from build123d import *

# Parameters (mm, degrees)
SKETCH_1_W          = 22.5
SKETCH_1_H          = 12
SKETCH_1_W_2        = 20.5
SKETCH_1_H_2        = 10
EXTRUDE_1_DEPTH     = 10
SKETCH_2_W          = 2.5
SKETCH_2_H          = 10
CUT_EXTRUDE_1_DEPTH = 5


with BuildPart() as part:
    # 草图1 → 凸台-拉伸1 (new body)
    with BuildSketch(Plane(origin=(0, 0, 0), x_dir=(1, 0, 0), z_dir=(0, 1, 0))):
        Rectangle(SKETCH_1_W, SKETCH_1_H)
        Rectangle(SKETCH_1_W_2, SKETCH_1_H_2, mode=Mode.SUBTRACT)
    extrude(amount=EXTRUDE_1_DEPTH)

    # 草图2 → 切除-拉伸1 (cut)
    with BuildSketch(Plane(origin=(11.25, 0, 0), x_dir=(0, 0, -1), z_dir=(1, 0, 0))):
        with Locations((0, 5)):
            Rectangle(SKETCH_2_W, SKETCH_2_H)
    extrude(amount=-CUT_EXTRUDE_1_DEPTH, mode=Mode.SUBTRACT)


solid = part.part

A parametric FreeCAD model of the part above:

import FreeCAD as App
import Part
import Sketcher
Q = App.Units.Quantity

doc = App.newDocument("Part")
body = doc.addObject("PartDesign::Body", "Body")

# Sketch on XZ plane
sketch1 = doc.addObject("Sketcher::SketchObject", "Sketch")
body.addObject(sketch1)
sketch1.AttachmentSupport = (doc.XZ_Plane, [""])
sketch1.MapMode = "FlatFace"
sketch1.addGeometry(Part.LineSegment(App.Vector(-11.25, -6, 0), App.Vector(-11.25, 6, 0)), False)
sketch1.addGeometry(Part.LineSegment(App.Vector(-11.25, 6, 0), App.Vector(11.25, 6, 0)), False)
sketch1.addGeometry(Part.LineSegment(App.Vector(11.25, 6, 0), App.Vector(11.25, -6, 0)), False)
sketch1.addGeometry(Part.LineSegment(App.Vector(11.25, -6, 0), App.Vector(-11.25, -6, 0)), False)
sketch1.addGeometry(Part.LineSegment(App.Vector(10.25, 5, 0), App.Vector(-10.25, 5, 0)), False)
sketch1.addGeometry(Part.LineSegment(App.Vector(-10.25, 5, 0), App.Vector(-10.25, -5, 0)), False)
sketch1.addGeometry(Part.LineSegment(App.Vector(-10.25, -5, 0), App.Vector(10.25, -5, 0)), False)
sketch1.addGeometry(Part.LineSegment(App.Vector(10.25, -5, 0), App.Vector(10.25, 5, 0)), False)
sketch1.addConstraint(Sketcher.Constraint("Coincident", 0, 2, 1, 1))
sketch1.addConstraint(Sketcher.Constraint("Coincident", 1, 2, 2, 1))
sketch1.addConstraint(Sketcher.Constraint("Coincident", 2, 2, 3, 1))
sketch1.addConstraint(Sketcher.Constraint("Coincident", 3, 2, 0, 1))
sketch1.addConstraint(Sketcher.Constraint("Coincident", 4, 2, 5, 1))
sketch1.addConstraint(Sketcher.Constraint("Coincident", 5, 2, 6, 1))
sketch1.addConstraint(Sketcher.Constraint("Coincident", 6, 2, 7, 1))
sketch1.addConstraint(Sketcher.Constraint("Coincident", 7, 2, 4, 1))
sketch1.addConstraint(Sketcher.Constraint("Vertical", 0))
sketch1.addConstraint(Sketcher.Constraint("Horizontal", 1))
sketch1.addConstraint(Sketcher.Constraint("Vertical", 2))
sketch1.addConstraint(Sketcher.Constraint("Horizontal", 3))
sketch1.addConstraint(Sketcher.Constraint("Horizontal", 4))
sketch1.addConstraint(Sketcher.Constraint("Vertical", 5))
sketch1.addConstraint(Sketcher.Constraint("Horizontal", 6))
sketch1.addConstraint(Sketcher.Constraint("Vertical", 7))
sketch1.addConstraint(Sketcher.Constraint("Symmetric", 0, 2, 2, 2, -1, 1))
sketch1.addConstraint(Sketcher.Constraint("Symmetric", 4, 2, 6, 2, -1, 1))
sketch1.addConstraint(Sketcher.Constraint("DistanceY", 0, 1, 0, 2, Q("12 mm")))
sketch1.addConstraint(Sketcher.Constraint("DistanceY", 5, 2, 5, 1, Q("10 mm")))
sketch1.addConstraint(Sketcher.Constraint("DistanceX", 1, 1, 1, 2, Q("22.5 mm")))
sketch1.addConstraint(Sketcher.Constraint("DistanceX", 4, 2, 4, 1, Q("20.5 mm")))
pad1 = doc.addObject("PartDesign::Pad", "Pad")
body.addObject(pad1)
pad1.Profile = sketch1
pad1.Length = 10
pad1.Reversed = True

# Sketch on YZ plane
sketch2 = doc.addObject("Sketcher::SketchObject", "Sketch001")
body.addObject(sketch2)
sketch2.AttachmentSupport = (doc.YZ_Plane, [""])
sketch2.MapMode = "FlatFace"
sketch2.AttachmentOffset = App.Placement(App.Vector(0, 0, 11.25), App.Rotation())
sketch2.addGeometry(Part.LineSegment(App.Vector(10, 1.25, 0), App.Vector(0, 1.25, 0)), False)
sketch2.addGeometry(Part.LineSegment(App.Vector(0, 1.25, 0), App.Vector(0, -1.25, 0)), False)
sketch2.addGeometry(Part.LineSegment(App.Vector(0, -1.25, 0), App.Vector(10, -1.25, 0)), False)
sketch2.addGeometry(Part.LineSegment(App.Vector(10, -1.25, 0), App.Vector(10, 1.25, 0)), False)
sketch2.addConstraint(Sketcher.Constraint("Coincident", 0, 2, 1, 1))
sketch2.addConstraint(Sketcher.Constraint("Coincident", 1, 2, 2, 1))
sketch2.addConstraint(Sketcher.Constraint("Coincident", 2, 2, 3, 1))
sketch2.addConstraint(Sketcher.Constraint("Coincident", 3, 2, 0, 1))
sketch2.addConstraint(Sketcher.Constraint("Horizontal", 0))
sketch2.addConstraint(Sketcher.Constraint("Vertical", 1))
sketch2.addConstraint(Sketcher.Constraint("Horizontal", 2))
sketch2.addConstraint(Sketcher.Constraint("Vertical", 3))
sketch2.addConstraint(Sketcher.Constraint("Symmetric", 0, 2, 1, 2, -1, 1))
sketch2.addConstraint(Sketcher.Constraint("DistanceX", 0, 2, 0, 1, Q("10 mm")))
sketch2.addConstraint(Sketcher.Constraint("DistanceY", 1, 2, 1, 1, Q("2.5 mm")))
pocket1 = doc.addObject("PartDesign::Pocket", "Pocket")
body.addObject(pocket1)
pocket1.Profile = sketch2
pocket1.Length = 5

doc.recompute()
